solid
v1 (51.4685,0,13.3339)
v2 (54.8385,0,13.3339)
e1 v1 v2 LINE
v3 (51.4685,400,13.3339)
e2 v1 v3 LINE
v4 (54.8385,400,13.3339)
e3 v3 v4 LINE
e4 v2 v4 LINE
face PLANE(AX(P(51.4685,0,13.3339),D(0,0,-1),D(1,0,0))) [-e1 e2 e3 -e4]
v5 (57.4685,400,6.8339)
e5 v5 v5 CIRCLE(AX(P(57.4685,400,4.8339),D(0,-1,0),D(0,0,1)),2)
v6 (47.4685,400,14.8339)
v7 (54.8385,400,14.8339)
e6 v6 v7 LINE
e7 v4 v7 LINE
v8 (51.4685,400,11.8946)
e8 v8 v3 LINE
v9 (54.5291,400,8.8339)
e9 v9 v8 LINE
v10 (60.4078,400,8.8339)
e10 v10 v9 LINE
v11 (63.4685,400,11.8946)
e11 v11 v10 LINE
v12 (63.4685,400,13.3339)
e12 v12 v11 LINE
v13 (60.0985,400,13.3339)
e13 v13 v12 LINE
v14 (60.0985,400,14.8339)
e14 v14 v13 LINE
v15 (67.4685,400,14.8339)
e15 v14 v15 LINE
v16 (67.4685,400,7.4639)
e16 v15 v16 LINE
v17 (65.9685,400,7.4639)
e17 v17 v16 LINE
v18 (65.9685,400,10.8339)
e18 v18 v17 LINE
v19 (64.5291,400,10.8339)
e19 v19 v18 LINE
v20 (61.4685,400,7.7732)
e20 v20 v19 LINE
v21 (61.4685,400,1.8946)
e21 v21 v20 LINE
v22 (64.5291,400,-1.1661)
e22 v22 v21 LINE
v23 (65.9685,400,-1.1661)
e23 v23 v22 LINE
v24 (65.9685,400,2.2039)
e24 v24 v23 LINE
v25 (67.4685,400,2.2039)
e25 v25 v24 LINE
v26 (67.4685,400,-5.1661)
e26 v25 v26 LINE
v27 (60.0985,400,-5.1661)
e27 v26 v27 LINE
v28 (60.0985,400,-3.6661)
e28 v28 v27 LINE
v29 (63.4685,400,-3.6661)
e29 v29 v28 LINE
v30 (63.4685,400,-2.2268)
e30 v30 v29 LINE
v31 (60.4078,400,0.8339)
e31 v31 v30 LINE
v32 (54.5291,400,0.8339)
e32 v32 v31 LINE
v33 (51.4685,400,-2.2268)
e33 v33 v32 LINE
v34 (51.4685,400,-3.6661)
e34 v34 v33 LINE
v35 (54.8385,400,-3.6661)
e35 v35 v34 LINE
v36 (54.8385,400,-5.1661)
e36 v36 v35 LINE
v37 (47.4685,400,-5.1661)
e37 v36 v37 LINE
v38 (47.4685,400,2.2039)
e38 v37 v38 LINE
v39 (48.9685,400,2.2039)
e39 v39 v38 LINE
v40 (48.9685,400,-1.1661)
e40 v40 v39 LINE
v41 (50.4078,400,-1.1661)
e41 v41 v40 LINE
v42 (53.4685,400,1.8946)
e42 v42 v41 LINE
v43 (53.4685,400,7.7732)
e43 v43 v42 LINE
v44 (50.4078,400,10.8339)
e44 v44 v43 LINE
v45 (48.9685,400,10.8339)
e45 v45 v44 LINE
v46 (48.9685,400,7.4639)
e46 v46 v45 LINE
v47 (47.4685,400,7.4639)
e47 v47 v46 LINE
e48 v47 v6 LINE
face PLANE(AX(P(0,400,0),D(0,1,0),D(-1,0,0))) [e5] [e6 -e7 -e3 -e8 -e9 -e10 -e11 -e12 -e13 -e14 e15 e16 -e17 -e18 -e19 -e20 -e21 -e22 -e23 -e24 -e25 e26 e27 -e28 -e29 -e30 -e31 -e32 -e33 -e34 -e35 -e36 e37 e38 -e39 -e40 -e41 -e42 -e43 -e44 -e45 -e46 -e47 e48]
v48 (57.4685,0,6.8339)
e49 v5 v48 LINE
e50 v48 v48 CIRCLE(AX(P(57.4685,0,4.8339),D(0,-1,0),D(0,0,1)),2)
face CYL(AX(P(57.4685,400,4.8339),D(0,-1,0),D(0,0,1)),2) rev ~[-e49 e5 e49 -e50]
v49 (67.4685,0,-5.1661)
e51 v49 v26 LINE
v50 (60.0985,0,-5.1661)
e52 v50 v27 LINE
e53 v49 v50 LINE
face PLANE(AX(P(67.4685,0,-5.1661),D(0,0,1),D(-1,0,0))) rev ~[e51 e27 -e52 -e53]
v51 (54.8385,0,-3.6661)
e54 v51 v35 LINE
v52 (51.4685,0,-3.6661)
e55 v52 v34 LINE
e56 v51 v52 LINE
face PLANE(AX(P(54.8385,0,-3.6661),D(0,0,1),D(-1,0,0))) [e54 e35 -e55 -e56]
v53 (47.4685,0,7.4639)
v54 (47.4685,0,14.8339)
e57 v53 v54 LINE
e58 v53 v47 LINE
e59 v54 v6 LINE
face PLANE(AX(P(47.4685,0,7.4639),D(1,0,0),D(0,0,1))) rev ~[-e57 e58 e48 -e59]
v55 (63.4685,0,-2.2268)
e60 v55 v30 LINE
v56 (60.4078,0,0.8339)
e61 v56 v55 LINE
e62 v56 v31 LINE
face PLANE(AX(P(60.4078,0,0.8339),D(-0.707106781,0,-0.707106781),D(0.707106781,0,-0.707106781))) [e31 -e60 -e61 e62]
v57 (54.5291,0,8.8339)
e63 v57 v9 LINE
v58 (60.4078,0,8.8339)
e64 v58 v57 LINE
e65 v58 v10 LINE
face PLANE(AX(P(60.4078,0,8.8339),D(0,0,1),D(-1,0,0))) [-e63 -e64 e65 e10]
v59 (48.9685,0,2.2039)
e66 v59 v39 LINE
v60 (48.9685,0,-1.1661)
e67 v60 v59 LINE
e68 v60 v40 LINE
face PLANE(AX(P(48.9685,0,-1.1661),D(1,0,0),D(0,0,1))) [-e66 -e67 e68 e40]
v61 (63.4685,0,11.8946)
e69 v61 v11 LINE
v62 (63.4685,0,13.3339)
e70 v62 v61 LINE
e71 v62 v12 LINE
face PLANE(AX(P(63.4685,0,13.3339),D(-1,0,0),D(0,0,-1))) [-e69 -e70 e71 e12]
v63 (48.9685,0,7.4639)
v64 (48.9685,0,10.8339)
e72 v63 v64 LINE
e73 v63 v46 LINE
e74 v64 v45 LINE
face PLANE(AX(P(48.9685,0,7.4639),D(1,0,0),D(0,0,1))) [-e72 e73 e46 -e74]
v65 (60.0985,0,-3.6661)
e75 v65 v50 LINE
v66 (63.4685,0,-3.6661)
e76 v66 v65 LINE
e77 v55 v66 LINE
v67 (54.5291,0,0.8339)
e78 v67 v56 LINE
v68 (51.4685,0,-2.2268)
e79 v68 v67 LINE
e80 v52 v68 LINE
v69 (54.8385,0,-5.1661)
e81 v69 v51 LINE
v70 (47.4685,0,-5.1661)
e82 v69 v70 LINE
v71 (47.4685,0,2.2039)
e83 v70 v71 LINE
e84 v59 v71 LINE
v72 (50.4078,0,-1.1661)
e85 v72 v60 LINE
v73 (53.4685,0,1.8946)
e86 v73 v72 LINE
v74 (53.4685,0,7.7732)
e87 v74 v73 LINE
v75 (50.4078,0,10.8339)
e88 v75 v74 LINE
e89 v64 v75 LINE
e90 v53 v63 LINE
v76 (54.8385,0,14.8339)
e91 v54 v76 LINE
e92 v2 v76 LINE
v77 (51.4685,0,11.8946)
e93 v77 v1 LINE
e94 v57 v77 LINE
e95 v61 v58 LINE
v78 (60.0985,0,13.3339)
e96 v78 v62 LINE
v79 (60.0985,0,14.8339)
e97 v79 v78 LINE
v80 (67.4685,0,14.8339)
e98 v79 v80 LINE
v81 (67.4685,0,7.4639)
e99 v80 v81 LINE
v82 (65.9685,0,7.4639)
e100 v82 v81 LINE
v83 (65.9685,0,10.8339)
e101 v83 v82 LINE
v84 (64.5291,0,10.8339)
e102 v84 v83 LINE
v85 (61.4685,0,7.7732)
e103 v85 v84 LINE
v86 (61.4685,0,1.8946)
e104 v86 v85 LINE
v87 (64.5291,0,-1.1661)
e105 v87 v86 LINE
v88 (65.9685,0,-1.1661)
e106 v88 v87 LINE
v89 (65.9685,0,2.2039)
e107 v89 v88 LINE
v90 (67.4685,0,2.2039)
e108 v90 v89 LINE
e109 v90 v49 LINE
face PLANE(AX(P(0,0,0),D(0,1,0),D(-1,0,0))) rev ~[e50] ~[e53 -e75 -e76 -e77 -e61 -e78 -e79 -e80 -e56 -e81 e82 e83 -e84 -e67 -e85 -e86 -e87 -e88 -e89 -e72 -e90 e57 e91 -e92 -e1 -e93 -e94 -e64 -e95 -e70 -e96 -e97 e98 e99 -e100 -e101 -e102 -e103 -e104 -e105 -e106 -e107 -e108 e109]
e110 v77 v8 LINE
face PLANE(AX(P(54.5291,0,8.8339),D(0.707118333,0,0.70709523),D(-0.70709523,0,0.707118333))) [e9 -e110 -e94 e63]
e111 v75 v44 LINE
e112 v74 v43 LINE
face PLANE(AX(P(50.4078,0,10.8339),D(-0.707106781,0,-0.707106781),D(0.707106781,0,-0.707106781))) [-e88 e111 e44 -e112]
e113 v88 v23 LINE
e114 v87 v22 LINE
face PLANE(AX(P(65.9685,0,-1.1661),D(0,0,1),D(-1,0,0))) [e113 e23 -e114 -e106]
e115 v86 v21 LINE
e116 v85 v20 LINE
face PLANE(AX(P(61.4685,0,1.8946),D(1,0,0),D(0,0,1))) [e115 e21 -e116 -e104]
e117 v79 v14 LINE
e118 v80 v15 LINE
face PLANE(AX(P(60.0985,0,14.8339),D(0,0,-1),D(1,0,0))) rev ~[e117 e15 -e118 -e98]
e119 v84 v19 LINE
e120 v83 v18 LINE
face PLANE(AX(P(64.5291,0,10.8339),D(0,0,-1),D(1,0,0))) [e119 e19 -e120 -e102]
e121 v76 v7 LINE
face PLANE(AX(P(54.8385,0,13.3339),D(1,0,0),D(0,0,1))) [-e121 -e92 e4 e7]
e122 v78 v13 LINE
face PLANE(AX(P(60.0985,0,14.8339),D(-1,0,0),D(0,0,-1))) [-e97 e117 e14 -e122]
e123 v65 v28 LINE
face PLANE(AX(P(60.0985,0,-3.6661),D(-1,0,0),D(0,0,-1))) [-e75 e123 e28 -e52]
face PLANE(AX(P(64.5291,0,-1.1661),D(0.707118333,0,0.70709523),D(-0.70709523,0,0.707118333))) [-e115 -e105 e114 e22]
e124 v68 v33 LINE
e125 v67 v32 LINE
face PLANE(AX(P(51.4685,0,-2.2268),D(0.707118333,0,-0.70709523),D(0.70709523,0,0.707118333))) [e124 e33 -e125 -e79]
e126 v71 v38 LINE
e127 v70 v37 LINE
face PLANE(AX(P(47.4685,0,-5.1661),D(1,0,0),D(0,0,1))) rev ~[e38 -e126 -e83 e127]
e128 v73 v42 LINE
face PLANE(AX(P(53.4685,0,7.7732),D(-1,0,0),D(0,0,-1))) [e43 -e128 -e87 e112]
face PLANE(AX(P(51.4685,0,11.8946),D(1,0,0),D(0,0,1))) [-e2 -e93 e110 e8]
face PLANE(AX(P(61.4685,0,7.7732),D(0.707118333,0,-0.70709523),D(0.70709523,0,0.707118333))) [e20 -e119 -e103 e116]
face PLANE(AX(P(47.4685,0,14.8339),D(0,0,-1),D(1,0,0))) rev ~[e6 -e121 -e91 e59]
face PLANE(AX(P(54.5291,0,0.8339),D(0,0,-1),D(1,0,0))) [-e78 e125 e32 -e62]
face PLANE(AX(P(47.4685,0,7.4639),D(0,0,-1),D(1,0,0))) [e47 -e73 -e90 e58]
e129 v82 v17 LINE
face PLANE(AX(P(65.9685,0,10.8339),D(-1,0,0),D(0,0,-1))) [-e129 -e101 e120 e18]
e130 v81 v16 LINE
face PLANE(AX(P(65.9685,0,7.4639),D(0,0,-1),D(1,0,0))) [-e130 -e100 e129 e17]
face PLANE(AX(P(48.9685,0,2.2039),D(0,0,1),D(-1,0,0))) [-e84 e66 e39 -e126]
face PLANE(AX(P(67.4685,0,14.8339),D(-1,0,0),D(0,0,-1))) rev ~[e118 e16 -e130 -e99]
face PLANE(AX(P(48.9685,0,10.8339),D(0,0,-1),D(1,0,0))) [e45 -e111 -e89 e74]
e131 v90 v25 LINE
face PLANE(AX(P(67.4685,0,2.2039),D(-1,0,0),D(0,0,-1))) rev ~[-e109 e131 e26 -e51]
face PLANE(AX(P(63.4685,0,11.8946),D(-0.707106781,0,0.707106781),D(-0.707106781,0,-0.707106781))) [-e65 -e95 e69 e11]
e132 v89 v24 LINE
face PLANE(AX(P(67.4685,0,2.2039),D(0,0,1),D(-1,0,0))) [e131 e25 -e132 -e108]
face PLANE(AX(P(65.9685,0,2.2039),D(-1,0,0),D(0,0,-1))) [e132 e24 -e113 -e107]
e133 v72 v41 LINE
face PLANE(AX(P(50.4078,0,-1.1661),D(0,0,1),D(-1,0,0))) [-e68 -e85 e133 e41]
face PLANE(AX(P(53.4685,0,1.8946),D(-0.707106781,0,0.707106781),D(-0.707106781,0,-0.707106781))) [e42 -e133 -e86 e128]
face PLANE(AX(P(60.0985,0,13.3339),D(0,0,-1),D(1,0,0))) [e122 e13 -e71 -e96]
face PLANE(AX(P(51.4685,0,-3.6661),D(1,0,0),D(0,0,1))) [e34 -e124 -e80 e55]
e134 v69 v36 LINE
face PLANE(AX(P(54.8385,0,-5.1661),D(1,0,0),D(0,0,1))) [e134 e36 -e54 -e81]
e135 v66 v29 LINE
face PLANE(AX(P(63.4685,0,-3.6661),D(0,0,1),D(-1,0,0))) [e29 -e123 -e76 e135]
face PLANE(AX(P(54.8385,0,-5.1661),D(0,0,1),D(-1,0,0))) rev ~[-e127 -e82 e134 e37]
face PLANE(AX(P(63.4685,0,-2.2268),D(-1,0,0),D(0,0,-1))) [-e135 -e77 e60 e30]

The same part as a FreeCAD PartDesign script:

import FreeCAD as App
import Part
import Sketcher
from FreeCAD import Vector
Q = App.Units.Quantity


def add_polygon(sketch, points):
    """Adds a closed chain of lines whose ends are joined by coincident constraints."""
    first, n = sketch.GeometryCount, len(points)
    for a, b in zip(points, points[1:] + points[:1]):
        sketch.addGeometry(Part.LineSegment(App.Vector(*a, 0), App.Vector(*b, 0)), False)
    for i in range(n):
        sketch.addConstraint(Sketcher.Constraint("Coincident", first + i, 2, first + (i + 1) % n, 1))

doc = App.newDocument("Part")
params = doc.addObject("Spreadsheet::Sheet", "Params")
for row, (alias, value) in enumerate([
    ("sketch1_width", "1.5 mm"),
    ("sketch1_width2", "3.37 mm"),
    ("pad1_length", "400 mm"),
    ("sketch2_diameter", "4 mm"),
    ("hole_diameter", "4 mm"),
    ("hole_depth", "400 mm"),
], start=1):
    params.set(f"A{row}", alias)
    params.set(f"B{row}", "=" + value)
    params.setAlias(f"B{row}", alias)

body = doc.addObject("PartDesign::Body", "Body")

# Sketch on XZ plane
sketch1 = body.newObject("Sketcher::SketchObject", "Sketch")
sketch1.AttachmentSupport = (doc.getObject("XZ_Plane"), [""])
sketch1.MapMode = "FlatFace"
add_polygon(sketch1, [(63.5, -2.2), (60.4, 0.8), (54.5, 0.8), (51.5, -2.2), (51.5, -3.7), (54.8, -3.7), (54.8, -5.2), (47.5, -5.2), (47.5, 2.2), (49, 2.2), (49, -1.2), (50.4, -1.2), (53.5, 1.9), (53.5, 7.8), (50.4, 10.8), (49, 10.8), (49, 7.5), (47.5, 7.5), (47.5, 14.8), (54.8, 14.8), (54.8, 13.3), (51.5, 13.3), (51.5, 11.9), (54.5, 8.8), (60.4, 8.8), (63.5, 11.9), (63.5, 13.3), (60.1, 13.3), (60.1, 14.8), (67.5, 14.8), (67.5, 7.5), (66, 7.5), (66, 10.8), (64.5, 10.8), (61.5, 7.8), (61.5, 1.9), (64.5, -1.2), (66, -1.2), (66, 2.2), (67.5, 2.2), (67.5, -5.2), (60.1, -5.2), (60.1, -3.7), (63.5, -3.7)])  # lines 0-43
sketch1.addConstraint([
    Sketcher.Constraint("Horizontal", 1),
    Sketcher.Constraint("Vertical", 3),
    Sketcher.Constraint("Horizontal", 4),
    Sketcher.Constraint("Vertical", 5),
    Sketcher.Constraint("Horizontal", 6),
    Sketcher.Constraint("Vertical", 7),
    Sketcher.Constraint("Horizontal", 8),
    Sketcher.Constraint("Vertical", 9),
    Sketcher.Constraint("Horizontal", 10),
    Sketcher.Constraint("Vertical", 12),
    Sketcher.Constraint("Horizontal", 14),
    Sketcher.Constraint("Vertical", 15),
    Sketcher.Constraint("Horizontal", 16),
    Sketcher.Constraint("Vertical", 17),
    Sketcher.Constraint("Horizontal", 18),
    Sketcher.Constraint("Vertical", 19),
    Sketcher.Constraint("Horizontal", 20),
    Sketcher.Constraint("Vertical", 21),
    Sketcher.Constraint("Horizontal", 23),
    Sketcher.Constraint("Vertical", 25),
    Sketcher.Constraint("Horizontal", 26),
    Sketcher.Constraint("Vertical", 27),
    Sketcher.Constraint("Horizontal", 28),
    Sketcher.Constraint("Vertical", 29),
    Sketcher.Constraint("Horizontal", 30),
    Sketcher.Constraint("Vertical", 31),
    Sketcher.Constraint("Horizontal", 32),
    Sketcher.Constraint("Vertical", 34),
    Sketcher.Constraint("Horizontal", 36),
    Sketcher.Constraint("Vertical", 37),
    Sketcher.Constraint("Horizontal", 38),
    Sketcher.Constraint("Vertical", 39),
    Sketcher.Constraint("Horizontal", 40),
    Sketcher.Constraint("Vertical", 41),
    Sketcher.Constraint("Horizontal", 42),
    Sketcher.Constraint("Vertical", 43),
    Sketcher.Constraint("Perpendicular", 0, 2),
    Sketcher.Constraint("Parallel", 2, 11),
    Sketcher.Constraint("Perpendicular", 11, 13),
    Sketcher.Constraint("Parallel", 13, 22),
    Sketcher.Constraint("Perpendicular", 22, 24),
    Sketcher.Constraint("Parallel", 24, 33),
    Sketcher.Constraint("Perpendicular", 33, 35),
    Sketcher.Constraint("Horizontal", 21, 2, 24, 2),
    Sketcher.Constraint("Horizontal", 20, 2, 25, 2),
    Sketcher.Constraint("Horizontal", 18, 2, 27, 2),
    Sketcher.Constraint("Horizontal", 16, 2, 29, 2),
    Sketcher.Constraint("Horizontal", 14, 2, 31, 2),
    Sketcher.Constraint("Horizontal", 12, 2, 33, 2),
    Sketcher.Constraint("Horizontal", 11, 2, 34, 2),
    Sketcher.Constraint("Horizontal", 10, 2, 35, 2),
    Sketcher.Constraint("Horizontal", 8, 2, 37, 2),
    Sketcher.Constraint("Horizontal", 6, 2, 39, 2),
    Sketcher.Constraint("Horizontal", 4, 2, 41, 2),
    Sketcher.Constraint("Horizontal", 2, 2, 43, 2),
    Sketcher.Constraint("Vertical", 10, 2, 13, 2),
    Sketcher.Constraint("Vertical", 9, 2, 14, 2),
    Sketcher.Constraint("Vertical", 7, 2, 16, 2),
    Sketcher.Constraint("Vertical", 5, 2, 18, 2),
    Sketcher.Constraint("Vertical", 3, 2, 20, 2),
    Sketcher.Constraint("Vertical", 1, 2, 22, 2),
    Sketcher.Constraint("Vertical", 0, 2, 23, 2),
    Sketcher.Constraint("Vertical", 32, 2, 35, 2),
    Sketcher.Constraint("Vertical", 31, 2, 36, 2),
    Sketcher.Constraint("Vertical", 29, 2, 38, 2),
    Sketcher.Constraint("Vertical", 27, 2, 40, 2),
    Sketcher.Constraint("Equal", 20, 26),
    Sketcher.Constraint("Equal", 18, 28),
    Sketcher.Constraint("Equal", 16, 30),
    Sketcher.Constraint("Equal", 14, 32),
    Sketcher.Constraint("Equal", 36, 3),
    Sketcher.Constraint("Equal", 38, 5),
    Sketcher.Constraint("Equal", 40, 7),
    Sketcher.Constraint("Equal", 42, 9),
    Sketcher.Constraint("Equal", 23, 12),
    Sketcher.Constraint("Equal", 9, 15),
    Sketcher.Constraint("Equal", 7, 17),
    Sketcher.Constraint("Equal", 5, 19),
    Sketcher.Constraint("Equal", 3, 21),
    Sketcher.Constraint("Equal", 2, 11),
    Sketcher.Constraint("DistanceX", 8, 1, 8, 2, Q("1.5 mm")),
    Sketcher.Constraint("DistanceY", 5, 2, 1, 2, Q("6 mm")),
    Sketcher.Constraint("DistanceX", 6, 2, 3, 2, Q("4 mm")),
    Sketcher.Constraint("DistanceY", 1, 2, 13, 2, Q("10 mm")),
    Sketcher.Constraint("DistanceX", 4, 1, 4, 2, Q("3.37 mm")),
    Sketcher.Constraint("DistanceX", 1, 2, 1, 1, Q("5.8787 mm")),
    Sketcher.Constraint("DistanceY", -1, 1, 0, 2, Q("0.834 mm")),
    Sketcher.Constraint("DistanceX", -1, 1, 1, 2, Q("54.529 mm")),
])
sketch1.setExpression("Constraints[124]", "Params.sketch1_width")
sketch1.setExpression("Constraints[128]", "Params.sketch1_width2")
pad1 = body.newObject("PartDesign::Pad", "Pad")
pad1.Profile = sketch1
pad1.setExpression("Length", "Params.pad1_length")
pad1.Reversed = True

# Sketch on XZ plane
sketch2 = body.newObject("Sketcher::SketchObject", "Sketch001")
sketch2.AttachmentSupport = (doc.getObject("XZ_Plane"), [""])
sketch2.MapMode = "FlatFace"
sketch2.AttachmentOffset = App.Placement(Vector(0, 0, -400), App.Rotation())
sketch2.addGeometry(Part.Circle(Vector(57.5, 4.8, 0), Vector(0, 0, 1), 2), False)
sketch2.addConstraint([
    Sketcher.Constraint("Diameter", 0, Q("4 mm")),
    Sketcher.Constraint("DistanceY", -1, 1, 0, 3, Q("4.834 mm")),
    Sketcher.Constraint("DistanceX", -1, 1, 0, 3, Q("57.4685 mm")),
])
sketch2.setExpression("Constraints[0]", "Params.sketch2_diameter")
doc.recompute()
hole = body.newObject("PartDesign::Hole", "Hole")
hole.Profile = sketch2
hole.ThreadType = "None"
hole.setExpression("Diameter", "Params.hole_diameter")
hole.DepthType = "Dimension"
hole.setExpression("Depth", "Params.hole_depth")
hole.DrillPoint = "Flat"
hole.Reversed = True

doc.recompute()
